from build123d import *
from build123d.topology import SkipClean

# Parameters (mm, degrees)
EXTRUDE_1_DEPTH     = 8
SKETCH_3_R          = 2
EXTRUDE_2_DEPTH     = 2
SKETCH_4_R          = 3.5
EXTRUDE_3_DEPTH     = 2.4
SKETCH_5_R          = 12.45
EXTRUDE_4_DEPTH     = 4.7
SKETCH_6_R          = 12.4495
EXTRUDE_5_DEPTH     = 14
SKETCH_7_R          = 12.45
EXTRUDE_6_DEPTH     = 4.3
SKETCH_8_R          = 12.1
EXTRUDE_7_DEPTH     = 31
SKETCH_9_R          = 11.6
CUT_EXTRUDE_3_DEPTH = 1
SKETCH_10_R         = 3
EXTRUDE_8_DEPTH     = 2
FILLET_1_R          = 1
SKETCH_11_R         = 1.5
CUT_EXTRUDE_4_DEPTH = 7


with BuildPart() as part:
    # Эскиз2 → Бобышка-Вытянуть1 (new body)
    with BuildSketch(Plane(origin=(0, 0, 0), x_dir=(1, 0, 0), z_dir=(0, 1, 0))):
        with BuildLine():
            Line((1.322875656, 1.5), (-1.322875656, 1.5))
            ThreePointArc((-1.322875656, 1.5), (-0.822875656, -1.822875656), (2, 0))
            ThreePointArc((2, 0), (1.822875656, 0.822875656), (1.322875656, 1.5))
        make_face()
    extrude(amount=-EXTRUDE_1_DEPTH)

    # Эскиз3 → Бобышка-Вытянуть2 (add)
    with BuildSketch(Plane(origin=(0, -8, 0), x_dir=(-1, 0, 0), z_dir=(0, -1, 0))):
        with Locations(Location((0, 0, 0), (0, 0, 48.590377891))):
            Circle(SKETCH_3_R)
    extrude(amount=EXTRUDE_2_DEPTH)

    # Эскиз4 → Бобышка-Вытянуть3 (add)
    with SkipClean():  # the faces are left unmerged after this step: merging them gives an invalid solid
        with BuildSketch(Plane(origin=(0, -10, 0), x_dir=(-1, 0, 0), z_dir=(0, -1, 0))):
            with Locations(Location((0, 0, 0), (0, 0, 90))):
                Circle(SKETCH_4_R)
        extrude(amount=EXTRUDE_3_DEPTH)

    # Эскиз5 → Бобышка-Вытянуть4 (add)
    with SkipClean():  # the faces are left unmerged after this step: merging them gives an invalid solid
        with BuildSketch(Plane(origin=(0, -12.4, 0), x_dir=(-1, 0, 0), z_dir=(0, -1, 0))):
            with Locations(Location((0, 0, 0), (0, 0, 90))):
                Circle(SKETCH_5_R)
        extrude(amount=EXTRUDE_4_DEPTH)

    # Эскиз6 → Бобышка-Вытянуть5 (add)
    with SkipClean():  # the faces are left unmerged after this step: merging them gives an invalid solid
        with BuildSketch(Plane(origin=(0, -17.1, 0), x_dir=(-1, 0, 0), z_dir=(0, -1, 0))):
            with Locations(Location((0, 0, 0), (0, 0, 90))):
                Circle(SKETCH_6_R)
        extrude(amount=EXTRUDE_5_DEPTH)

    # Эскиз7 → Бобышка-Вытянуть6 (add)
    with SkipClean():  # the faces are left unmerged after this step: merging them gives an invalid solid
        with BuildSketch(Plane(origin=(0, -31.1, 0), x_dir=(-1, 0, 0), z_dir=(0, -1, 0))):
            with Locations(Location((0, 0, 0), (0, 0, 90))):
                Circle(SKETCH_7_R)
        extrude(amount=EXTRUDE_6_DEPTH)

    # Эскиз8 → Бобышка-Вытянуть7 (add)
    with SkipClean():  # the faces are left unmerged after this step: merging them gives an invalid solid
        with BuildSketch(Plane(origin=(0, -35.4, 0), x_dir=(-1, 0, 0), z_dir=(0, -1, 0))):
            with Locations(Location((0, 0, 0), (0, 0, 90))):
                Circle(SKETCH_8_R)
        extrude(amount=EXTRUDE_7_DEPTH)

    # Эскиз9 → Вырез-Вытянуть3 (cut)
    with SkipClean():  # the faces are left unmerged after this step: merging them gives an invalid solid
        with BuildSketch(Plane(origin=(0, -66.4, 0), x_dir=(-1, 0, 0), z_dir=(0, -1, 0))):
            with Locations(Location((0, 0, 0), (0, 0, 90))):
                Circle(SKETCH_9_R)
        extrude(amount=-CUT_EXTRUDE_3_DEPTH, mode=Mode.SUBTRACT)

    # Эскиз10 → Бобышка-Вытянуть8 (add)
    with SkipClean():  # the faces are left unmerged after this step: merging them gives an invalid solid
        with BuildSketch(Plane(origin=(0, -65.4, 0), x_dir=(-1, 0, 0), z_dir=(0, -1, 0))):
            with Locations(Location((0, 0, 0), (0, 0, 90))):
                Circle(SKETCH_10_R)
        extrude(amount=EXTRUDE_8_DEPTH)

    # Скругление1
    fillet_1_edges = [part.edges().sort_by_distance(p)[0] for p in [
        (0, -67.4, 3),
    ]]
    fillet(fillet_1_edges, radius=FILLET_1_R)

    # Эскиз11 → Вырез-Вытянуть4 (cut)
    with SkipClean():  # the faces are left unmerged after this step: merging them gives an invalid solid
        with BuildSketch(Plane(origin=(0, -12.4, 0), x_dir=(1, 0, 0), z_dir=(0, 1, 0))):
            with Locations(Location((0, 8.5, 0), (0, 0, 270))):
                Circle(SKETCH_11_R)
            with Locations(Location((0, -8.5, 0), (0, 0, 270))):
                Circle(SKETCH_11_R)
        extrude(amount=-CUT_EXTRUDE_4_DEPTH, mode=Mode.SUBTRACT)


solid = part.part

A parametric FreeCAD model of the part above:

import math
import FreeCAD as App
import Part
import Sketcher


def edges_at(feature, points):
    """Names of the edges that pass closest to the given points."""
    edges = feature.Shape.Edges
    near = lambda p: min(range(len(edges)), key=lambda i: edges[i].distToShape(Part.Vertex(*p))[0])
    return sorted({f"Edge{near(p) + 1}" for p in points})

doc = App.newDocument("Part")
body = doc.addObject("PartDesign::Body", "Body")

sketch1 = body.newObject("Sketcher::SketchObject", "Sketch")
sketch1.AttachmentSupport = (doc.getObject("XZ_Plane"), [""])
sketch1.MapMode = "FlatFace"
sketch1.addGeometry(Part.LineSegment(App.Vector(1.322876, -1.5, 0), App.Vector(-1.322876, -1.5, 0)), False)
sketch1.addGeometry(Part.ArcOfCircle(Part.Circle(App.Vector(0, 0, 0), App.Vector(0, 0, 1), 2), math.radians(0), math.radians(228.590378)), False)
sketch1.addGeometry(Part.ArcOfCircle(Part.Circle(App.Vector(0, 0, 0), App.Vector(0, 0, 1), 2), math.radians(-48.590378), math.radians(0)), False)
sketch1.addConstraint(Sketcher.Constraint("Coincident", 0, 2, 1, 2))
sketch1.addConstraint(Sketcher.Constraint("Tangent", 1, 1, 2, 2))
sketch1.addConstraint(Sketcher.Constraint("Coincident", 2, 1, 0, 1))
sketch1.addConstraint(Sketcher.Constraint("Horizontal", 0))
sketch1.addConstraint(Sketcher.Constraint("Coincident", 1, 3, -1, 1))
sketch1.addConstraint(Sketcher.Constraint("Equal", 1, 2))
sketch1.addConstraint(Sketcher.Constraint("PointOnObject", 1, 1, -1))
sketch1.addConstraint(Sketcher.Constraint("Radius", 1, 2.0))
sketch1.addConstraint(Sketcher.Constraint("DistanceY", 0, 2, -1, 1, 1.5))
pad1 = body.newObject("PartDesign::Pad", "Pad")
pad1.Profile = sketch1
pad1.Length = 8

sketch2 = body.newObject("Sketcher::SketchObject", "Sketch001")
sketch2.AttachmentSupport = (doc.getObject("XZ_Plane"), [""])
sketch2.MapMode = "FlatFace"
sketch2.AttachmentOffset = App.Placement(App.Vector(0, 0, 8), App.Rotation())
sketch2.addGeometry(Part.Circle(App.Vector(0, 0, 0), App.Vector(0, 0, 1), 2), False)
sketch2.addConstraint(Sketcher.Constraint("Coincident", 0, 3, -1, 1))
sketch2.addConstraint(Sketcher.Constraint("Diameter", 0, 4.0))
pad2 = body.newObject("PartDesign::Pad", "Pad001")
pad2.Profile = sketch2
pad2.Length = 2

sketch3 = body.newObject("Sketcher::SketchObject", "Sketch002")
sketch3.AttachmentSupport = (doc.getObject("XZ_Plane"), [""])
sketch3.MapMode = "FlatFace"
sketch3.AttachmentOffset = App.Placement(App.Vector(0, 0, 10), App.Rotation())
sketch3.addGeometry(Part.Circle(App.Vector(0, 0, 0), App.Vector(0, 0, 1), 3.5), False)
sketch3.addConstraint(Sketcher.Constraint("Coincident", 0, 3, -1, 1))
sketch3.addConstraint(Sketcher.Constraint("Diameter", 0, 7.0))
pad3 = body.newObject("PartDesign::Pad", "Pad002")
pad3.Profile = sketch3
pad3.Length = 2.4

sketch4 = body.newObject("Sketcher::SketchObject", "Sketch003")
sketch4.AttachmentSupport = (doc.getObject("XZ_Plane"), [""])
sketch4.MapMode = "FlatFace"
sketch4.AttachmentOffset = App.Placement(App.Vector(0, 0, 12.4), App.Rotation())
sketch4.addGeometry(Part.Circle(App.Vector(0, 0, 0), App.Vector(0, 0, 1), 12.45), False)
sketch4.addConstraint(Sketcher.Constraint("Coincident", 0, 3, -1, 1))
sketch4.addConstraint(Sketcher.Constraint("Diameter", 0, 24.9))
pad4 = body.newObject("PartDesign::Pad", "Pad003")
pad4.Profile = sketch4
pad4.Length = 4.7

sketch5 = body.newObject("Sketcher::SketchObject", "Sketch004")
sketch5.AttachmentSupport = (doc.getObject("XZ_Plane"), [""])
sketch5.MapMode = "FlatFace"
sketch5.AttachmentOffset = App.Placement(App.Vector(0, 0, 17.1), App.Rotation())
sketch5.addGeometry(Part.Circle(App.Vector(0, 0, 0), App.Vector(0, 0, 1), 12.4495), False)
sketch5.addConstraint(Sketcher.Constraint("Coincident", 0, 3, -1, 1))
sketch5.addConstraint(Sketcher.Constraint("Diameter", 0, 24.899))
pad5 = body.newObject("PartDesign::Pad", "Pad004")
pad5.Profile = sketch5
pad5.Length = 14

sketch6 = body.newObject("Sketcher::SketchObject", "Sketch005")
sketch6.AttachmentSupport = (doc.getObject("XZ_Plane"), [""])
sketch6.MapMode = "FlatFace"
sketch6.AttachmentOffset = App.Placement(App.Vector(0, 0, 31.1), App.Rotation())
sketch6.addGeometry(Part.Circle(App.Vector(0, 0, 0), App.Vector(0, 0, 1), 12.45), False)
sketch6.addConstraint(Sketcher.Constraint("Coincident", 0, 3, -1, 1))
sketch6.addConstraint(Sketcher.Constraint("Diameter", 0, 24.9))
pad6 = body.newObject("PartDesign::Pad", "Pad005")
pad6.Profile = sketch6
pad6.Length = 4.3

sketch7 = body.newObject("Sketcher::SketchObject", "Sketch006")
sketch7.AttachmentSupport = (doc.getObject("XZ_Plane"), [""])
sketch7.MapMode = "FlatFace"
sketch7.AttachmentOffset = App.Placement(App.Vector(0, 0, 35.4), App.Rotation())
sketch7.addGeometry(Part.Circle(App.Vector(0, 0, 0), App.Vector(0, 0, 1), 12.1), False)
sketch7.addConstraint(Sketcher.Constraint("Coincident", 0, 3, -1, 1))
sketch7.addConstraint(Sketcher.Constraint("Diameter", 0, 24.2))
pad7 = body.newObject("PartDesign::Pad", "Pad006")
pad7.Profile = sketch7
pad7.Length = 31

sketch8 = body.newObject("Sketcher::SketchObject", "Sketch007")
sketch8.AttachmentSupport = (doc.getObject("XZ_Plane"), [""])
sketch8.MapMode = "FlatFace"
sketch8.AttachmentOffset = App.Placement(App.Vector(0, 0, 66.4), App.Rotation())
sketch8.addGeometry(Part.Circle(App.Vector(0, 0, 0), App.Vector(0, 0, 1), 11.6), False)
sketch8.addConstraint(Sketcher.Constraint("Coincident", 0, 3, -1, 1))
sketch8.addConstraint(Sketcher.Constraint("Diameter", 0, 23.2))
pocket1 = body.newObject("PartDesign::Pocket", "Pocket")
pocket1.Profile = sketch8
pocket1.Length = 1

sketch9 = body.newObject("Sketcher::SketchObject", "Sketch008")
sketch9.AttachmentSupport = (doc.getObject("XZ_Plane"), [""])
sketch9.MapMode = "FlatFace"
sketch9.AttachmentOffset = App.Placement(App.Vector(0, 0, 65.4), App.Rotation())
sketch9.addGeometry(Part.Circle(App.Vector(0, 0, 0), App.Vector(0, 0, 1), 3), False)
sketch9.addConstraint(Sketcher.Constraint("Coincident", 0, 3, -1, 1))
sketch9.addConstraint(Sketcher.Constraint("Diameter", 0, 6.0))
pad8 = body.newObject("PartDesign::Pad", "Pad007")
pad8.Profile = sketch9
pad8.Length = 2
doc.recompute()

fillet = body.newObject("PartDesign::Fillet", "Fillet")
fillet.Base = (pad8, edges_at(pad8, [(0, -67.4, 3)]))
fillet.Radius = 1

sketch10 = body.newObject("Sketcher::SketchObject", "Sketch009")
sketch10.AttachmentSupport = (doc.getObject("XZ_Plane"), [""])
sketch10.MapMode = "FlatFace"
sketch10.AttachmentOffset = App.Placement(App.Vector(0, 0, 12.4), App.Rotation())
sketch10.addGeometry(Part.Circle(App.Vector(0, -8.5, 0), App.Vector(0, 0, 1), 1.5), False)
sketch10.addGeometry(Part.Circle(App.Vector(0, 8.5, 0), App.Vector(0, 0, 1), 1.5), False)
sketch10.addConstraint(Sketcher.Constraint("Equal", 0, 1))
sketch10.addConstraint(Sketcher.Constraint("Symmetric", 0, 3, 1, 3, -1, 1))
sketch10.addConstraint(Sketcher.Constraint("PointOnObject", 0, 3, -2))
sketch10.addConstraint(Sketcher.Constraint("Diameter", 0, 3.0))
sketch10.addConstraint(Sketcher.Constraint("DistanceY", 0, 3, 1, 3, 17.0))
pocket2 = body.newObject("PartDesign::Pocket", "Pocket001")
pocket2.Profile = sketch10
pocket2.Length = 7
pocket2.Reversed = True

doc.recompute()
